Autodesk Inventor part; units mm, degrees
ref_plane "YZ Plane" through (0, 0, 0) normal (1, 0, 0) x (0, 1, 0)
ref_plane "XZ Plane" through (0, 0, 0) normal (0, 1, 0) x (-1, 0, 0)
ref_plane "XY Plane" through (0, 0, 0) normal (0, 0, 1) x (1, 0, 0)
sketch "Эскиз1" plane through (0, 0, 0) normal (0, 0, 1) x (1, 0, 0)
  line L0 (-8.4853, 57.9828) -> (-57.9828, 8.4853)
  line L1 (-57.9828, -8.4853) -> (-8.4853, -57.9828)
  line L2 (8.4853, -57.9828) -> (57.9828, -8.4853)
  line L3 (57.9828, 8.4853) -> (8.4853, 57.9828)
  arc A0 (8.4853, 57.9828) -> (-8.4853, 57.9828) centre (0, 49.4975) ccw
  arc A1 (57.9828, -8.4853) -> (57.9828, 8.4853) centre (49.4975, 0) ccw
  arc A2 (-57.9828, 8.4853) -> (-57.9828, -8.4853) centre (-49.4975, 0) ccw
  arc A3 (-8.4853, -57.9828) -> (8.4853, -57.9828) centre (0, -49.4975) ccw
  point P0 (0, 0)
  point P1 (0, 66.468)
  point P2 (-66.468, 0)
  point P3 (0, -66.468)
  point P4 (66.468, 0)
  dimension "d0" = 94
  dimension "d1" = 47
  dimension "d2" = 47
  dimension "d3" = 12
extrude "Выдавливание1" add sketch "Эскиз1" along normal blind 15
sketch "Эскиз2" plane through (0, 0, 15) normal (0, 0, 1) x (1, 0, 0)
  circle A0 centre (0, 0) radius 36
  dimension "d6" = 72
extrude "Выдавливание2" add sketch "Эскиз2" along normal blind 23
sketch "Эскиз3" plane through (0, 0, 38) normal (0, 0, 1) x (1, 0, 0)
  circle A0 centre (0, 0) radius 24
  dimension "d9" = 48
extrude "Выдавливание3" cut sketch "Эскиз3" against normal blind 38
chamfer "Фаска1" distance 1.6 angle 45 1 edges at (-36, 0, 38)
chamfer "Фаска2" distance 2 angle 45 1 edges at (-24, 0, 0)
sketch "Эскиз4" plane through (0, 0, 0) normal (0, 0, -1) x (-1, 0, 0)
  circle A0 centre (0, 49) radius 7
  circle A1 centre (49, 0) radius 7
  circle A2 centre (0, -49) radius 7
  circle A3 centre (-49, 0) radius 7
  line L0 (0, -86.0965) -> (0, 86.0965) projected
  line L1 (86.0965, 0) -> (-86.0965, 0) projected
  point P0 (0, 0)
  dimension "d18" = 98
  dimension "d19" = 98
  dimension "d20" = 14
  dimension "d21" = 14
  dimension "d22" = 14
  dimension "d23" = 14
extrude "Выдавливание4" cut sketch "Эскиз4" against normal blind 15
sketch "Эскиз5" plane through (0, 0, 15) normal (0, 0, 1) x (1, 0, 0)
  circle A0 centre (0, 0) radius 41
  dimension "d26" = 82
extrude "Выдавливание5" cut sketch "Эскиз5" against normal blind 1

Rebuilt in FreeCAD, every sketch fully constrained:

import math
import FreeCAD as App
import Part
import Sketcher
from FreeCAD import Vector


def edges_at(feature, points):
    """Names of the edges that pass closest to the given points."""
    edges = feature.Shape.Edges
    near = lambda p: min(range(len(edges)), key=lambda i: edges[i].distToShape(Part.Vertex(*p))[0])
    return sorted({f"Edge{near(p) + 1}" for p in points})

doc = App.newDocument("Part")
body = doc.addObject("PartDesign::Body", "Body")
body.AllowCompound = True

# Sketch on XY plane
sketch1 = body.newObject("Sketcher::SketchObject", "Sketch")
sketch1.AttachmentSupport = (doc.getObject("XY_Plane"), [""])
sketch1.MapMode = "FlatFace"
sketch1.addGeometry([
    Part.ArcOfCircle(Part.Circle(Vector(0, 49, 0), Vector(0, 0, 1), 12), math.radians(45), math.radians(135)),  # 0
    Part.LineSegment(Vector(-8, 58, 0), Vector(-58, 8, 0)),  # 1
    Part.ArcOfCircle(Part.Circle(Vector(-49, 0, 0), Vector(0, 0, 1), 12), math.radians(135), math.radians(225)),  # 2
    Part.LineSegment(Vector(-58, -8, 0), Vector(-8, -58, 0)),  # 3
    Part.ArcOfCircle(Part.Circle(Vector(0, -49, 0), Vector(0, 0, 1), 12), math.radians(-135), math.radians(-45)),  # 4
    Part.LineSegment(Vector(8, -58, 0), Vector(58, -8, 0)),  # 5
    Part.ArcOfCircle(Part.Circle(Vector(49, 0, 0), Vector(0, 0, 1), 12), math.radians(-45), math.radians(45)),  # 6
    Part.LineSegment(Vector(58, 8, 0), Vector(8, 58, 0)),  # 7
], False)
sketch1.addConstraint([
    Sketcher.Constraint("Tangent", 0, 2, 1, 1),
    Sketcher.Constraint("Tangent", 1, 2, 2, 1),
    Sketcher.Constraint("Tangent", 2, 2, 3, 1),
    Sketcher.Constraint("Tangent", 3, 2, 4, 1),
    Sketcher.Constraint("Tangent", 4, 2, 5, 1),
    Sketcher.Constraint("Tangent", 5, 2, 6, 1),
    Sketcher.Constraint("Tangent", 6, 2, 7, 1),
    Sketcher.Constraint("Tangent", 7, 2, 0, 1),
    Sketcher.Constraint("Equal", 0, 2),
    Sketcher.Constraint("Equal", 2, 4),
    Sketcher.Constraint("Equal", 4, 6),
    Sketcher.Constraint("Symmetric", 0, 3, 4, 3, -1, 1),
    Sketcher.Constraint("Symmetric", 2, 3, 6, 3, -1, 1),
    Sketcher.Constraint("Symmetric", 3, 2, 4, 2, -2),
    Sketcher.Constraint("Perpendicular", 1, 3),
    Sketcher.Constraint("Radius", 0, 12.0),
    Sketcher.Constraint("Distance", 1, 70.0),
])
pad1 = body.newObject("PartDesign::Pad", "Pad")
pad1.Profile = sketch1
pad1.Length = 15

# Sketch on XY plane
sketch2 = body.newObject("Sketcher::SketchObject", "Sketch001")
sketch2.AttachmentSupport = (doc.getObject("XY_Plane"), [""])
sketch2.MapMode = "FlatFace"
sketch2.AttachmentOffset = App.Placement(Vector(0, 0, 15), App.Rotation())
sketch2.addGeometry(Part.Circle(Vector(0, 0, 0), Vector(0, 0, 1), 36), False)
sketch2.addConstraint([
    Sketcher.Constraint("Coincident", 0, 3, -1, 1),
    Sketcher.Constraint("Diameter", 0, 72.0),
])
pad2 = body.newObject("PartDesign::Pad", "Pad001")
pad2.Profile = sketch2
pad2.Length = 23

# Sketch on XY plane
sketch3 = body.newObject("Sketcher::SketchObject", "Sketch002")
sketch3.AttachmentSupport = (doc.getObject("XY_Plane"), [""])
sketch3.MapMode = "FlatFace"
sketch3.AttachmentOffset = App.Placement(Vector(0, 0, 38), App.Rotation())
sketch3.addGeometry(Part.Circle(Vector(0, 0, 0), Vector(0, 0, 1), 24), False)
sketch3.addConstraint([
    Sketcher.Constraint("Coincident", 0, 3, -1, 1),
    Sketcher.Constraint("Diameter", 0, 48.0),
])
pocket1 = body.newObject("PartDesign::Pocket", "Pocket")
pocket1.Profile = sketch3
pocket1.Length = 38
doc.recompute()

chamfer = body.newObject("PartDesign::Chamfer", "Chamfer")
chamfer.Base = (pocket1, edges_at(pocket1, [(-36, 0, 38)]))
chamfer.Size = 1.6
doc.recompute()

chamfer2 = body.newObject("PartDesign::Chamfer", "Chamfer001")
chamfer2.Base = (chamfer, edges_at(chamfer, [(-24, 0, 0)]))
chamfer2.Size = 2

# Sketch on XY plane
sketch4 = body.newObject("Sketcher::SketchObject", "Sketch003")
sketch4.AttachmentSupport = (doc.getObject("XY_Plane"), [""])
sketch4.MapMode = "FlatFace"
sketch4.addGeometry([
    Part.Circle(Vector(0, 49, 0), Vector(0, 0, 1), 7),
    Part.Circle(Vector(-49, 0, 0), Vector(0, 0, 1), 7),
    Part.Circle(Vector(0, -49, 0), Vector(0, 0, 1), 7),
    Part.Circle(Vector(49, 0, 0), Vector(0, 0, 1), 7),
], False)
sketch4.addConstraint([
    Sketcher.Constraint("Equal", 0, 1),
    Sketcher.Constraint("Equal", 1, 2),
    Sketcher.Constraint("Equal", 2, 3),
    Sketcher.Constraint("Symmetric", 0, 3, 2, 3, -1, 1),
    Sketcher.Constraint("Symmetric", 1, 3, 3, 3, -1, 1),
    Sketcher.Constraint("PointOnObject", 0, 3, -2),
    Sketcher.Constraint("PointOnObject", 1, 3, -1),
    Sketcher.Constraint("Diameter", 0, 14.0),
    Sketcher.Constraint("DistanceY", 2, 3, 0, 3, 98.0),
    Sketcher.Constraint("DistanceX", 1, 3, 3, 3, 98.0),
])
pocket2 = body.newObject("PartDesign::Pocket", "Pocket001")
pocket2.Profile = sketch4
pocket2.Length = 15
pocket2.Reversed = True

# Sketch on XY plane
sketch5 = body.newObject("Sketcher::SketchObject", "Sketch004")
sketch5.AttachmentSupport = (doc.getObject("XY_Plane"), [""])
sketch5.MapMode = "FlatFace"
sketch5.AttachmentOffset = App.Placement(Vector(0, 0, 15), App.Rotation())
sketch5.addGeometry(Part.Circle(Vector(0, 0, 0), Vector(0, 0, 1), 41), False)
sketch5.addConstraint([
    Sketcher.Constraint("Coincident", 0, 3, -1, 1),
    Sketcher.Constraint("Diameter", 0, 82.0),
])
pocket3 = body.newObject("PartDesign::Pocket", "Pocket002")
pocket3.Profile = sketch5
pocket3.Length = 1

doc.recompute()
